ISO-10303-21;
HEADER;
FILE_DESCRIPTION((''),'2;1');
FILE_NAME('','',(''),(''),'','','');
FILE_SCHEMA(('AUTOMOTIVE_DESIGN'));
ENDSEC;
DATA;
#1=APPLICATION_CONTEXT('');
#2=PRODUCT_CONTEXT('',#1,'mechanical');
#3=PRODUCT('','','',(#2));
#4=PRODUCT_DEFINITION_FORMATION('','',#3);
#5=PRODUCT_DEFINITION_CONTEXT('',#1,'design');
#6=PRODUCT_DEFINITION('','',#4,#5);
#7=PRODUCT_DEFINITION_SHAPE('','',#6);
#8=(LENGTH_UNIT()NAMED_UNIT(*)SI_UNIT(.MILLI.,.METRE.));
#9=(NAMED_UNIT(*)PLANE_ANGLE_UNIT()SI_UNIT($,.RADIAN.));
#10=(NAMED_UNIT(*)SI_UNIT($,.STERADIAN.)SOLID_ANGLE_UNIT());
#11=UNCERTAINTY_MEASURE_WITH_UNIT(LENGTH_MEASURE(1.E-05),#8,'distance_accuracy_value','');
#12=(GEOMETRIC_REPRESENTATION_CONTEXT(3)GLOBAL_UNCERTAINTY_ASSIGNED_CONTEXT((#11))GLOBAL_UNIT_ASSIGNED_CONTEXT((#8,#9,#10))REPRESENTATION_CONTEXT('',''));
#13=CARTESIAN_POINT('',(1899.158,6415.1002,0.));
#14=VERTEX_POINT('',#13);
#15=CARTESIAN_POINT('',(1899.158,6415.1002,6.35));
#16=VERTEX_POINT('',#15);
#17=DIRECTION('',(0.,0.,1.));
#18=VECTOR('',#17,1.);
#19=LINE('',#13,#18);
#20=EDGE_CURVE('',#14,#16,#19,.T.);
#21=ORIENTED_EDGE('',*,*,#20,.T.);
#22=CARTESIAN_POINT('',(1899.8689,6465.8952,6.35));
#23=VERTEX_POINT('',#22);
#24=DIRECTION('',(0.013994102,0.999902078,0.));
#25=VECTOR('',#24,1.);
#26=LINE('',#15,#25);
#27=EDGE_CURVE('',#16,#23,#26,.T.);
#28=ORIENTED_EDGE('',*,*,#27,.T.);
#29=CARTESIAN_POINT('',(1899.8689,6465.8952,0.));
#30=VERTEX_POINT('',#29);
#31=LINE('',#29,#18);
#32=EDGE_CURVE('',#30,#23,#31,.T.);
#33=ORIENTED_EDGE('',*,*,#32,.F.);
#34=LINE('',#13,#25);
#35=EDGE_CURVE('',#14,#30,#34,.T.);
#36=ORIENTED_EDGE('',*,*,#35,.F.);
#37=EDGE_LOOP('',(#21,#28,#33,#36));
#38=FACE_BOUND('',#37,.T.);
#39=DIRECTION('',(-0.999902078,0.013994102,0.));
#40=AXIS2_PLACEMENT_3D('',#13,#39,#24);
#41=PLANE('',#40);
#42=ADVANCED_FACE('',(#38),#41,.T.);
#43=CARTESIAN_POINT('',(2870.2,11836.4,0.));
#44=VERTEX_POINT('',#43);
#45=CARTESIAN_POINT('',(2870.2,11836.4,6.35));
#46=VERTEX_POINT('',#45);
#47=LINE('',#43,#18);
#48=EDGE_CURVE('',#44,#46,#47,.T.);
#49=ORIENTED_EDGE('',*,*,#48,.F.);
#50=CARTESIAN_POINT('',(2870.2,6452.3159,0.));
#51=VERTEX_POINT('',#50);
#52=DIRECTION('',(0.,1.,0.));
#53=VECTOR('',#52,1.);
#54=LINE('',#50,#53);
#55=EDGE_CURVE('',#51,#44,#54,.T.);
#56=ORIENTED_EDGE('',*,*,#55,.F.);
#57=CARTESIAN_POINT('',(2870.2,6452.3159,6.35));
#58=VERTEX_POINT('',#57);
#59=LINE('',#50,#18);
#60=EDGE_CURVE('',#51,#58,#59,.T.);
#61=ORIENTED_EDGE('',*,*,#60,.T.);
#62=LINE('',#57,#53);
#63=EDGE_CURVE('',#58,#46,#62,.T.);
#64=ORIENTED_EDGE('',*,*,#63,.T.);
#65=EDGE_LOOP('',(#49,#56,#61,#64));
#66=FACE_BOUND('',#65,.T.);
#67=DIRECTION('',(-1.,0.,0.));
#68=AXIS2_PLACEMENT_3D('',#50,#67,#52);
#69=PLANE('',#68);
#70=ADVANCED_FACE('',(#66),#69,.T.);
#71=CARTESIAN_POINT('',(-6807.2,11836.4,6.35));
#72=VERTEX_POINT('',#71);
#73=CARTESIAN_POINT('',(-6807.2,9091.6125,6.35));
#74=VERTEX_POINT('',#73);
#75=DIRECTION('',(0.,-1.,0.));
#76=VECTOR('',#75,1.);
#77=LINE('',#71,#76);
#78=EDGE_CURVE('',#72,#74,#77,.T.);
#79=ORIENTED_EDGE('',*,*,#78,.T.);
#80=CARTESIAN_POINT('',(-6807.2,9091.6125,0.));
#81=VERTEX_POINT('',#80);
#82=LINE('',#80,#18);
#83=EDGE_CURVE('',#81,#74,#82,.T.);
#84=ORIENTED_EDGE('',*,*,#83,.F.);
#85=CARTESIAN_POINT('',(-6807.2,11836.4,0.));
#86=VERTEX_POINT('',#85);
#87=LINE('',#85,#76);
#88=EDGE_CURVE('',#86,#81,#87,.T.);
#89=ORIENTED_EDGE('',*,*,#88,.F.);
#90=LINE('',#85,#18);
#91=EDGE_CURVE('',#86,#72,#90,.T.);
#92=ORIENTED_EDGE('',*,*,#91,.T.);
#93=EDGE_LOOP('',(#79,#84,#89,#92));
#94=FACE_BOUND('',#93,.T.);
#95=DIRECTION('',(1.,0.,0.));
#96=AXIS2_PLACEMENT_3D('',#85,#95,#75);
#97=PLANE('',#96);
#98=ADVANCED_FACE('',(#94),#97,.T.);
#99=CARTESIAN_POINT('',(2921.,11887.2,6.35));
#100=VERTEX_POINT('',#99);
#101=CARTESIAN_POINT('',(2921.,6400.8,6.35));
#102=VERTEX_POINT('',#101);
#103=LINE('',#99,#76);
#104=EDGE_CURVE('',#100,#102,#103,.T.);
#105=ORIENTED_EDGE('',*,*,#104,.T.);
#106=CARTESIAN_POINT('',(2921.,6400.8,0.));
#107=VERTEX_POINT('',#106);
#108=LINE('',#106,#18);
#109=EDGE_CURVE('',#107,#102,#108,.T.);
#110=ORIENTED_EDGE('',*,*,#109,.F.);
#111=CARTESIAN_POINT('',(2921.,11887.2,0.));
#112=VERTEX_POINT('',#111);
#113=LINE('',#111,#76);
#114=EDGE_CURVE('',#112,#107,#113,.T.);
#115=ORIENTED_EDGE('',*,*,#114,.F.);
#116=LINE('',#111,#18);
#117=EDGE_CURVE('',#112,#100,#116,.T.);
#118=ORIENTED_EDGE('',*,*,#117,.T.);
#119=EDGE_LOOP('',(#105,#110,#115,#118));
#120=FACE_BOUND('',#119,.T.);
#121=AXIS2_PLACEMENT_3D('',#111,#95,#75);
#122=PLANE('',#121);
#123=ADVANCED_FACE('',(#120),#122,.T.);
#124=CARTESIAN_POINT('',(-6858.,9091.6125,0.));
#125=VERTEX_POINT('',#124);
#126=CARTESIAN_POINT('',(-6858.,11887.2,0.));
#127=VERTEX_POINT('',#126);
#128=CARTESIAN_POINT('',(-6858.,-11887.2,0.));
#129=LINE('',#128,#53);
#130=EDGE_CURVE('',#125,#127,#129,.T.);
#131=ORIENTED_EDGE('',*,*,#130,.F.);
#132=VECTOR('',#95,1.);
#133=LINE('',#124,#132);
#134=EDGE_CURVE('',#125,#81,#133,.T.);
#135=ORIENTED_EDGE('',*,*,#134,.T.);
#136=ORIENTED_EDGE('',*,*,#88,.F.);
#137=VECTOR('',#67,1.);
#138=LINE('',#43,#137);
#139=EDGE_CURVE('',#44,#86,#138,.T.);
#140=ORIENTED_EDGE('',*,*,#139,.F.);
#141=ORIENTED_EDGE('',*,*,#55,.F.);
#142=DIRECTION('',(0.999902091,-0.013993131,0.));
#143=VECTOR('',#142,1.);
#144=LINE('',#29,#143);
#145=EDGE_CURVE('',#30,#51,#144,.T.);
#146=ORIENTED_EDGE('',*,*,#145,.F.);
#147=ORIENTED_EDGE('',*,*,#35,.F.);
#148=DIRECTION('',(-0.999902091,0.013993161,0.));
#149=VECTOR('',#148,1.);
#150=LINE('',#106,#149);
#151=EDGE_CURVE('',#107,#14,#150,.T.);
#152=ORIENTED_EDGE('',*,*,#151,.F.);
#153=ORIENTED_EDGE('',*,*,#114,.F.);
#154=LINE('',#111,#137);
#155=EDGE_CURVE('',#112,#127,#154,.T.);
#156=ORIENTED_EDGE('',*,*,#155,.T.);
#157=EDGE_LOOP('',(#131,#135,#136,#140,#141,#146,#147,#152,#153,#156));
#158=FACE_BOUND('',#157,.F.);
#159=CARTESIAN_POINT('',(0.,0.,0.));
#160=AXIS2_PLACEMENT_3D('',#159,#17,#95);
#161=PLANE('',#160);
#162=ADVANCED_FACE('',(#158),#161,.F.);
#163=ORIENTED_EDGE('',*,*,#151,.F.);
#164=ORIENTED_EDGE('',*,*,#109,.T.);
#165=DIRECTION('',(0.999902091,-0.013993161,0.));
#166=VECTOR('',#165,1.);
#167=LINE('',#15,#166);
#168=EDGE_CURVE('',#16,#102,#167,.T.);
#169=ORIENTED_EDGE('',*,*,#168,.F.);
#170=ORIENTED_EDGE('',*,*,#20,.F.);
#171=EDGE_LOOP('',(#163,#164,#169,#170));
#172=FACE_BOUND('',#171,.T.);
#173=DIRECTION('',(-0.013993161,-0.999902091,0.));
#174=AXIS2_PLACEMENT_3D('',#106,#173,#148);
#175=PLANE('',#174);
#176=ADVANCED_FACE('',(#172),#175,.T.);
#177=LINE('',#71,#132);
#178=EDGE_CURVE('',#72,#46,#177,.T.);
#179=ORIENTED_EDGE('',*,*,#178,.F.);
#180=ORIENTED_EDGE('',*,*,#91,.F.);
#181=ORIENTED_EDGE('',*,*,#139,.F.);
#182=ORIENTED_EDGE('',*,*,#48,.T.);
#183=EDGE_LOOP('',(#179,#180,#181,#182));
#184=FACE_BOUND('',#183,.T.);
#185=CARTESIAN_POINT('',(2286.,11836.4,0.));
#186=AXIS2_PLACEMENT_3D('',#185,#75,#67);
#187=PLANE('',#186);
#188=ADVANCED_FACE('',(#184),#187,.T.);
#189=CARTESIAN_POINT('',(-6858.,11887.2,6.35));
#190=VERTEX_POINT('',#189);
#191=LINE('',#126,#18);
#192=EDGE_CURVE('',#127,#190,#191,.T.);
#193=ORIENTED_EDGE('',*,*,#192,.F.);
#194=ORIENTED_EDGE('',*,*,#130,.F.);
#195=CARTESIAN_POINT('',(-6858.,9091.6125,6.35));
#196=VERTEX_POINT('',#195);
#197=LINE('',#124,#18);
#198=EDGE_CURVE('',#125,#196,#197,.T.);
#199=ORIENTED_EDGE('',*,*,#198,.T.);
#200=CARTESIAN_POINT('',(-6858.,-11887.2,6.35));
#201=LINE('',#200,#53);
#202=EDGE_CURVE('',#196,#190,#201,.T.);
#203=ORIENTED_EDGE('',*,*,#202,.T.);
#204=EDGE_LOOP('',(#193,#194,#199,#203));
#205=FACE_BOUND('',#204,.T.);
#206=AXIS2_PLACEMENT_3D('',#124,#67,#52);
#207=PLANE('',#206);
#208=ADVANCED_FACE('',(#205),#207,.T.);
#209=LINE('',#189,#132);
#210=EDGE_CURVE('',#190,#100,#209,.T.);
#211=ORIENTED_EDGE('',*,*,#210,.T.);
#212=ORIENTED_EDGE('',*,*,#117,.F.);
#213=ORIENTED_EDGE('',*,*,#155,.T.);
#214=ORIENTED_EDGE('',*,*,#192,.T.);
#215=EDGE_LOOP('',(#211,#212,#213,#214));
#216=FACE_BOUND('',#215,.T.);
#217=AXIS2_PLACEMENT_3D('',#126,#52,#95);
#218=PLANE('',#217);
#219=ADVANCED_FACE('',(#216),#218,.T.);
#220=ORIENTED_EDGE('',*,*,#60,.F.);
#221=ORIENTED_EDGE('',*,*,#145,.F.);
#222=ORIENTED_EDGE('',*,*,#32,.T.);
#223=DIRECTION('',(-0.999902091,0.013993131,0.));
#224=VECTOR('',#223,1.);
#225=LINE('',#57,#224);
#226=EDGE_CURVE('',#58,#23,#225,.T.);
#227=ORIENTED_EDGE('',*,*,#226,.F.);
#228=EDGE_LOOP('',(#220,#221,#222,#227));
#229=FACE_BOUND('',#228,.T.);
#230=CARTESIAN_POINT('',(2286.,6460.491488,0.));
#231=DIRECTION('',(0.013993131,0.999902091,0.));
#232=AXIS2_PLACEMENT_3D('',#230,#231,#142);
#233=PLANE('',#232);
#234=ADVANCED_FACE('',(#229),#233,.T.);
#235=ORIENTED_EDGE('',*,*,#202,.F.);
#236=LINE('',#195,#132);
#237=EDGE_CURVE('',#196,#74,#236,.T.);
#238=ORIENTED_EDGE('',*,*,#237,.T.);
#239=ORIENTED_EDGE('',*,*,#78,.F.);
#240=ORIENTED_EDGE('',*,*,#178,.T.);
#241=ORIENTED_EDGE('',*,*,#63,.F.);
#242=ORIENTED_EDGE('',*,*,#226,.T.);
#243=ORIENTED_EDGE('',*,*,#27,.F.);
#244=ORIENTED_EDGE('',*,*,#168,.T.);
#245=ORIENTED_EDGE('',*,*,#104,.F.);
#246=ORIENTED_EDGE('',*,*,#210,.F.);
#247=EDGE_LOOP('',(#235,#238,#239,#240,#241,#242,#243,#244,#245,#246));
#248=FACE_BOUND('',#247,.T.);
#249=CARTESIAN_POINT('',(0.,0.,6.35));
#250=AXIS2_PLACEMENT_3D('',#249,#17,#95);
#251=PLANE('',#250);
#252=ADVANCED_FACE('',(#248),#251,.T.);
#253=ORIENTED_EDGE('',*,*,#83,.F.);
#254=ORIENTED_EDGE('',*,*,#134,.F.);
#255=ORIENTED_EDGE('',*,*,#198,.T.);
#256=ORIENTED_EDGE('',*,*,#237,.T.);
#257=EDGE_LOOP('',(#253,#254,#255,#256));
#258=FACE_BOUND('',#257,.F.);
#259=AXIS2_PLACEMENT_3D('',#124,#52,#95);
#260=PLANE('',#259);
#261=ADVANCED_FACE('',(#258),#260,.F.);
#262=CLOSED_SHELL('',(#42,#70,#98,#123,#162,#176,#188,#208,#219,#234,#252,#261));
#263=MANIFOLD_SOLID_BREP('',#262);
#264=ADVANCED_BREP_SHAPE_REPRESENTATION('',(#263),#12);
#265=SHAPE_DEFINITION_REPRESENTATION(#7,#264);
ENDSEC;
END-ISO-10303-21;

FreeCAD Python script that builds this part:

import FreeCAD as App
import Part
import Sketcher
from FreeCAD import Vector
Q = App.Units.Quantity


def add_polygon(sketch, points):
    """Adds a closed chain of lines whose ends are joined by coincident constraints."""
    first, n = sketch.GeometryCount, len(points)
    for a, b in zip(points, points[1:] + points[:1]):
        sketch.addGeometry(Part.LineSegment(App.Vector(*a, 0), App.Vector(*b, 0)), False)
    for i in range(n):
        sketch.addConstraint(Sketcher.Constraint("Coincident", first + i, 2, first + (i + 1) % n, 1))

doc = App.newDocument("Part")
body = doc.addObject("PartDesign::Body", "Body")

sketch1 = body.newObject("Sketcher::SketchObject", "Sketch")
sketch1.AttachmentSupport = (doc.getObject("XY_Plane"), [""])
sketch1.MapMode = "FlatFace"
add_polygon(sketch1, [(-6858, 11887.2), (-6858, 9091.6125), (-6807.2, 9091.6125), (-6807.2, 11836.4), (2870.2, 11836.4), (2870.2, 6452.3159), (1899.8689, 6465.8952), (1899.158, 6415.1002), (2921, 6400.8), (2921, 11887.2)])
sketch1.addConstraint([
    Sketcher.Constraint("Vertical", 0),
    Sketcher.Constraint("Horizontal", 1),
    Sketcher.Constraint("Vertical", 2),
    Sketcher.Constraint("Horizontal", 3),
    Sketcher.Constraint("Vertical", 4),
    Sketcher.Constraint("Vertical", 8),
    Sketcher.Constraint("Horizontal", 9),
    Sketcher.Constraint("DistanceX", 1, 1, 1, 2, Q("2 in")),
    Sketcher.Constraint("DistanceX", 9, 2, 9, 1, Q("385 in")),
    Sketcher.Constraint("DistanceY", 8, 1, 8, 2, Q("216 in")),
    Sketcher.Constraint("Distance", 6, Q("2 in")),
    Sketcher.Constraint("DistanceX", 4, 2, 7, 2, Q("2 in")),
    Sketcher.Constraint("DistanceY", 3, 2, 8, 2, Q("2 in")),
    Sketcher.Constraint("DistanceX", 0, 2, -1, 1, Q("270 in")),
    Sketcher.Constraint("DistanceY", -1, 1, 2, 2, Q("466 in")),
    Sketcher.Constraint("DistanceY", 0, 2, 0, 1, Q("110.0625 in")),
    Sketcher.Constraint("DistanceX", -1, 1, 6, 2, Q("74.77 in")),
    Sketcher.Constraint("DistanceX", -1, 1, 5, 2, Q("74.798 in")),
    Sketcher.Constraint("DistanceY", -1, 1, 6, 2, Q("252.563 in")),
    Sketcher.Constraint("DistanceY", 4, 2, 4, 1, Q("211.971811 in")),
])
pad1 = body.newObject("PartDesign::Pad", "Pad")
pad1.Profile = sketch1
pad1.Length = Q("0.25 in")

doc.recompute()
